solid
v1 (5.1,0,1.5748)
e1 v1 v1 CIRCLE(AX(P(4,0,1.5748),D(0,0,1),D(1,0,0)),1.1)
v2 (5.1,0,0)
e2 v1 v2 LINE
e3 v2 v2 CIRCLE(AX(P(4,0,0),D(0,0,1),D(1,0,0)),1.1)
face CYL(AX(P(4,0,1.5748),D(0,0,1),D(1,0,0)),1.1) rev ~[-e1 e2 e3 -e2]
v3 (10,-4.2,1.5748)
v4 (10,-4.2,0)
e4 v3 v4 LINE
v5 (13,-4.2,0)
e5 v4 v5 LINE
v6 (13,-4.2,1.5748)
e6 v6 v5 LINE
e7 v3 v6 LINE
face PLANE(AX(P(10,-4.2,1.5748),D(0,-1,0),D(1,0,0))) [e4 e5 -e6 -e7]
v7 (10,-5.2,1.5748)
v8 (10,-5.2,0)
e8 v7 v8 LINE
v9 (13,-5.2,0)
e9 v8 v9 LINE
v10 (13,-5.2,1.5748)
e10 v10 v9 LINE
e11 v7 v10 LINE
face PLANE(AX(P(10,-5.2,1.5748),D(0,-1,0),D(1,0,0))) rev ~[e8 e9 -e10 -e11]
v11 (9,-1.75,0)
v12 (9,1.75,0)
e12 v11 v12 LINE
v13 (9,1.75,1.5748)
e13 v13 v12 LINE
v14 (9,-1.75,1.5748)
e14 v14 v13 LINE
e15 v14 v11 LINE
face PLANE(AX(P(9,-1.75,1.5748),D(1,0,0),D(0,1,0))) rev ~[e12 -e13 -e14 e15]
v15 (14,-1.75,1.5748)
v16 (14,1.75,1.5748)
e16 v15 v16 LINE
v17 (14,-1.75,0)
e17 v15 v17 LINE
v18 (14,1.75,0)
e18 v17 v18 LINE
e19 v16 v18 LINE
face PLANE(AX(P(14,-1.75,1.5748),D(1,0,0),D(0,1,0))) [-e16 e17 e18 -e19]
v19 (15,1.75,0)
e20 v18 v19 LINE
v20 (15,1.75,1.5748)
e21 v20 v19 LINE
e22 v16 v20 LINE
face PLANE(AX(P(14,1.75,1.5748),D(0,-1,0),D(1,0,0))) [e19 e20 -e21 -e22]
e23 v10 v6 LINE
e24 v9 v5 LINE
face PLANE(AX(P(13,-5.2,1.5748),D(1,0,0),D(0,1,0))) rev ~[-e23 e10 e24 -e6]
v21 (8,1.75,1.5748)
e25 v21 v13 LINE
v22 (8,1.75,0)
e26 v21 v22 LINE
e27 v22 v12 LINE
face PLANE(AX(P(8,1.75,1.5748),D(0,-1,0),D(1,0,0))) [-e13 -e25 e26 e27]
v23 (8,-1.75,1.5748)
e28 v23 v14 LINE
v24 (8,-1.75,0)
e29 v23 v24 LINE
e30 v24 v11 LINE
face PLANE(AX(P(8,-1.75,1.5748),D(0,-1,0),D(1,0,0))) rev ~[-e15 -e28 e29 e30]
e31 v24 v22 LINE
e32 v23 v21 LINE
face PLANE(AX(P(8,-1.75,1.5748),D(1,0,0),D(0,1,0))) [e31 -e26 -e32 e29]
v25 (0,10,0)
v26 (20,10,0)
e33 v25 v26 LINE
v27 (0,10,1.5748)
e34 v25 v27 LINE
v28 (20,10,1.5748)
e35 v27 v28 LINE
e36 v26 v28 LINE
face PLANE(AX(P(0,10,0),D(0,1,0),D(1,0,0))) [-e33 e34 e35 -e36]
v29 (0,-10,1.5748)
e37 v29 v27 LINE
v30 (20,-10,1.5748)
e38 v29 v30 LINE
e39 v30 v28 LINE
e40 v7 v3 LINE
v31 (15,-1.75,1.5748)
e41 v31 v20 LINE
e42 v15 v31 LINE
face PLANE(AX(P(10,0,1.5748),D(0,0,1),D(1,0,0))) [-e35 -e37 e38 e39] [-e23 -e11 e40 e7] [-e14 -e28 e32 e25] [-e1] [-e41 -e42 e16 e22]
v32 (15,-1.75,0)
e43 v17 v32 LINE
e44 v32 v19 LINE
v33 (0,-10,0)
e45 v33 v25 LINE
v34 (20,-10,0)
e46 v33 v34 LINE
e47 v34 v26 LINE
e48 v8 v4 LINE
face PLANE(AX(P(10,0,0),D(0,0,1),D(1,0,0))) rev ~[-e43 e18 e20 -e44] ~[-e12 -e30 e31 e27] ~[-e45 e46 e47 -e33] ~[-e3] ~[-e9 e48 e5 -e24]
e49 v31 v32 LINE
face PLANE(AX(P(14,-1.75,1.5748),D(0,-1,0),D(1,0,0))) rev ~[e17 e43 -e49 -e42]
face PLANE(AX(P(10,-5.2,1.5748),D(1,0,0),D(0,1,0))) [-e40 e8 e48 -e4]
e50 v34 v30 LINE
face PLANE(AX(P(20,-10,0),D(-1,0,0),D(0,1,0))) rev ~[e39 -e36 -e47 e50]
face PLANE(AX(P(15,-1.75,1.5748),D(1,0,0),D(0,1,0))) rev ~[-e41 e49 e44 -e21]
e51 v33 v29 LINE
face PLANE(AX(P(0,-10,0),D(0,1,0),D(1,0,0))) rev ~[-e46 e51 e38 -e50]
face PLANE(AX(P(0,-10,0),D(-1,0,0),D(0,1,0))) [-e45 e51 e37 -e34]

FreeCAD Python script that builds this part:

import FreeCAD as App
import Part
import Sketcher
from FreeCAD import Vector

doc = App.newDocument("Part")
body = doc.addObject("PartDesign::Body", "Body")

# Sketch on XY plane
sketch1 = doc.addObject("Sketcher::SketchObject", "Sketch")
body.addObject(sketch1)
sketch1.AttachmentSupport = (doc.XY_Plane, [""])
sketch1.MapMode = "FlatFace"
sketch1.addGeometry([
    Part.LineSegment(Vector(0, 10, 0), Vector(0, -10, 0)),
    Part.LineSegment(Vector(0, -10, 0), Vector(20, -10, 0)),
    Part.LineSegment(Vector(20, -10, 0), Vector(20, 10, 0)),
    Part.LineSegment(Vector(20, 10, 0), Vector(0, 10, 0)),
], False)
sketch1.addConstraint([
    Sketcher.Constraint("Coincident", 0, 2, 1, 1),
    Sketcher.Constraint("Coincident", 1, 2, 2, 1),
    Sketcher.Constraint("Coincident", 2, 2, 3, 1),
    Sketcher.Constraint("Coincident", 3, 2, 0, 1),
    Sketcher.Constraint("Vertical", 0),
    Sketcher.Constraint("Horizontal", 1),
    Sketcher.Constraint("Vertical", 2),
    Sketcher.Constraint("Horizontal", 3),
    Sketcher.Constraint("Symmetric", 0, 2, 3, 2, -1, 1),
    Sketcher.Constraint("Equal", 3, 0),
    Sketcher.Constraint("DistanceX", 1, 1, 1, 2, 20.0),
])
pad1 = doc.addObject("PartDesign::Pad", "Pad")
body.addObject(pad1)
pad1.Profile = sketch1
pad1.Length = 1.5748

# Sketch on XY plane
sketch2 = doc.addObject("Sketcher::SketchObject", "Sketch001")
body.addObject(sketch2)
sketch2.AttachmentSupport = (doc.XY_Plane, [""])
sketch2.MapMode = "FlatFace"
sketch2.AttachmentOffset = App.Placement(Vector(0, 0, 1.5748), App.Rotation())
sketch2.addGeometry([
    Part.Circle(Vector(4, 0, 0), Vector(0, 0, 1), 1.1),  # 0
    Part.LineSegment(Vector(8, 1.75, 0), Vector(8, -1.75, 0)),  # 1
    Part.LineSegment(Vector(8, -1.75, 0), Vector(9, -1.75, 0)),  # 2
    Part.LineSegment(Vector(9, -1.75, 0), Vector(9, 1.75, 0)),  # 3
    Part.LineSegment(Vector(9, 1.75, 0), Vector(8, 1.75, 0)),  # 4
    Part.LineSegment(Vector(14, 1.75, 0), Vector(14, -1.75, 0)),  # 5
    Part.LineSegment(Vector(14, -1.75, 0), Vector(15, -1.75, 0)),  # 6
    Part.LineSegment(Vector(15, -1.75, 0), Vector(15, 1.75, 0)),  # 7
    Part.LineSegment(Vector(15, 1.75, 0), Vector(14, 1.75, 0)),  # 8
    Part.LineSegment(Vector(10, -4.2, 0), Vector(10, -5.2, 0)),  # 9
    Part.LineSegment(Vector(10, -5.2, 0), Vector(13, -5.2, 0)),  # 10
    Part.LineSegment(Vector(13, -5.2, 0), Vector(13, -4.2, 0)),  # 11
    Part.LineSegment(Vector(13, -4.2, 0), Vector(10, -4.2, 0)),  # 12
], False)
sketch2.addConstraint([
    Sketcher.Constraint("Coincident", 1, 2, 2, 1),
    Sketcher.Constraint("Coincident", 2, 2, 3, 1),
    Sketcher.Constraint("Coincident", 3, 2, 4, 1),
    Sketcher.Constraint("Coincident", 4, 2, 1, 1),
    Sketcher.Constraint("Coincident", 5, 2, 6, 1),
    Sketcher.Constraint("Coincident", 6, 2, 7, 1),
    Sketcher.Constraint("Coincident", 7, 2, 8, 1),
    Sketcher.Constraint("Coincident", 8, 2, 5, 1),
    Sketcher.Constraint("Coincident", 9, 2, 10, 1),
    Sketcher.Constraint("Coincident", 10, 2, 11, 1),
    Sketcher.Constraint("Coincident", 11, 2, 12, 1),
    Sketcher.Constraint("Coincident", 12, 2, 9, 1),
    Sketcher.Constraint("Vertical", 1),
    Sketcher.Constraint("Horizontal", 2),
    Sketcher.Constraint("Vertical", 3),
    Sketcher.Constraint("Horizontal", 4),
    Sketcher.Constraint("Vertical", 5),
    Sketcher.Constraint("Horizontal", 6),
    Sketcher.Constraint("Vertical", 7),
    Sketcher.Constraint("Horizontal", 8),
    Sketcher.Constraint("Vertical", 9),
    Sketcher.Constraint("Horizontal", 10),
    Sketcher.Constraint("Vertical", 11),
    Sketcher.Constraint("Horizontal", 12),
    Sketcher.Constraint("PointOnObject", 0, 3, -1),
    Sketcher.Constraint("Horizontal", 2, 2, 5, 2),
    Sketcher.Constraint("Horizontal", 4, 2, 7, 2),
    Sketcher.Constraint("Equal", 4, 6),
    Sketcher.Constraint("Equal", 8, 9),
    Sketcher.Constraint("Diameter", 0, 2.2),
    Sketcher.Constraint("DistanceX", 2, 1, 2, 2, 1.0),
    Sketcher.Constraint("DistanceX", 10, 1, 10, 2, 3.0),
    Sketcher.Constraint("DistanceY", 1, 2, 1, 1, 3.5),
    Sketcher.Constraint("DistanceX", -1, 1, 0, 3, 4.0),
    Sketcher.Constraint("DistanceX", -1, 1, 1, 2, 8.0),
    Sketcher.Constraint("DistanceX", -1, 1, 5, 2, 14.0),
    Sketcher.Constraint("DistanceX", -1, 1, 9, 2, 10.0),
    Sketcher.Constraint("DistanceY", 9, 2, -1, 1, 5.2),
    Sketcher.Constraint("DistanceY", 1, 2, -1, 1, 1.75),
])
pocket1 = doc.addObject("PartDesign::Pocket", "Pocket")
body.addObject(pocket1)
pocket1.Profile = sketch2
pocket1.Length = 25

doc.recompute()
